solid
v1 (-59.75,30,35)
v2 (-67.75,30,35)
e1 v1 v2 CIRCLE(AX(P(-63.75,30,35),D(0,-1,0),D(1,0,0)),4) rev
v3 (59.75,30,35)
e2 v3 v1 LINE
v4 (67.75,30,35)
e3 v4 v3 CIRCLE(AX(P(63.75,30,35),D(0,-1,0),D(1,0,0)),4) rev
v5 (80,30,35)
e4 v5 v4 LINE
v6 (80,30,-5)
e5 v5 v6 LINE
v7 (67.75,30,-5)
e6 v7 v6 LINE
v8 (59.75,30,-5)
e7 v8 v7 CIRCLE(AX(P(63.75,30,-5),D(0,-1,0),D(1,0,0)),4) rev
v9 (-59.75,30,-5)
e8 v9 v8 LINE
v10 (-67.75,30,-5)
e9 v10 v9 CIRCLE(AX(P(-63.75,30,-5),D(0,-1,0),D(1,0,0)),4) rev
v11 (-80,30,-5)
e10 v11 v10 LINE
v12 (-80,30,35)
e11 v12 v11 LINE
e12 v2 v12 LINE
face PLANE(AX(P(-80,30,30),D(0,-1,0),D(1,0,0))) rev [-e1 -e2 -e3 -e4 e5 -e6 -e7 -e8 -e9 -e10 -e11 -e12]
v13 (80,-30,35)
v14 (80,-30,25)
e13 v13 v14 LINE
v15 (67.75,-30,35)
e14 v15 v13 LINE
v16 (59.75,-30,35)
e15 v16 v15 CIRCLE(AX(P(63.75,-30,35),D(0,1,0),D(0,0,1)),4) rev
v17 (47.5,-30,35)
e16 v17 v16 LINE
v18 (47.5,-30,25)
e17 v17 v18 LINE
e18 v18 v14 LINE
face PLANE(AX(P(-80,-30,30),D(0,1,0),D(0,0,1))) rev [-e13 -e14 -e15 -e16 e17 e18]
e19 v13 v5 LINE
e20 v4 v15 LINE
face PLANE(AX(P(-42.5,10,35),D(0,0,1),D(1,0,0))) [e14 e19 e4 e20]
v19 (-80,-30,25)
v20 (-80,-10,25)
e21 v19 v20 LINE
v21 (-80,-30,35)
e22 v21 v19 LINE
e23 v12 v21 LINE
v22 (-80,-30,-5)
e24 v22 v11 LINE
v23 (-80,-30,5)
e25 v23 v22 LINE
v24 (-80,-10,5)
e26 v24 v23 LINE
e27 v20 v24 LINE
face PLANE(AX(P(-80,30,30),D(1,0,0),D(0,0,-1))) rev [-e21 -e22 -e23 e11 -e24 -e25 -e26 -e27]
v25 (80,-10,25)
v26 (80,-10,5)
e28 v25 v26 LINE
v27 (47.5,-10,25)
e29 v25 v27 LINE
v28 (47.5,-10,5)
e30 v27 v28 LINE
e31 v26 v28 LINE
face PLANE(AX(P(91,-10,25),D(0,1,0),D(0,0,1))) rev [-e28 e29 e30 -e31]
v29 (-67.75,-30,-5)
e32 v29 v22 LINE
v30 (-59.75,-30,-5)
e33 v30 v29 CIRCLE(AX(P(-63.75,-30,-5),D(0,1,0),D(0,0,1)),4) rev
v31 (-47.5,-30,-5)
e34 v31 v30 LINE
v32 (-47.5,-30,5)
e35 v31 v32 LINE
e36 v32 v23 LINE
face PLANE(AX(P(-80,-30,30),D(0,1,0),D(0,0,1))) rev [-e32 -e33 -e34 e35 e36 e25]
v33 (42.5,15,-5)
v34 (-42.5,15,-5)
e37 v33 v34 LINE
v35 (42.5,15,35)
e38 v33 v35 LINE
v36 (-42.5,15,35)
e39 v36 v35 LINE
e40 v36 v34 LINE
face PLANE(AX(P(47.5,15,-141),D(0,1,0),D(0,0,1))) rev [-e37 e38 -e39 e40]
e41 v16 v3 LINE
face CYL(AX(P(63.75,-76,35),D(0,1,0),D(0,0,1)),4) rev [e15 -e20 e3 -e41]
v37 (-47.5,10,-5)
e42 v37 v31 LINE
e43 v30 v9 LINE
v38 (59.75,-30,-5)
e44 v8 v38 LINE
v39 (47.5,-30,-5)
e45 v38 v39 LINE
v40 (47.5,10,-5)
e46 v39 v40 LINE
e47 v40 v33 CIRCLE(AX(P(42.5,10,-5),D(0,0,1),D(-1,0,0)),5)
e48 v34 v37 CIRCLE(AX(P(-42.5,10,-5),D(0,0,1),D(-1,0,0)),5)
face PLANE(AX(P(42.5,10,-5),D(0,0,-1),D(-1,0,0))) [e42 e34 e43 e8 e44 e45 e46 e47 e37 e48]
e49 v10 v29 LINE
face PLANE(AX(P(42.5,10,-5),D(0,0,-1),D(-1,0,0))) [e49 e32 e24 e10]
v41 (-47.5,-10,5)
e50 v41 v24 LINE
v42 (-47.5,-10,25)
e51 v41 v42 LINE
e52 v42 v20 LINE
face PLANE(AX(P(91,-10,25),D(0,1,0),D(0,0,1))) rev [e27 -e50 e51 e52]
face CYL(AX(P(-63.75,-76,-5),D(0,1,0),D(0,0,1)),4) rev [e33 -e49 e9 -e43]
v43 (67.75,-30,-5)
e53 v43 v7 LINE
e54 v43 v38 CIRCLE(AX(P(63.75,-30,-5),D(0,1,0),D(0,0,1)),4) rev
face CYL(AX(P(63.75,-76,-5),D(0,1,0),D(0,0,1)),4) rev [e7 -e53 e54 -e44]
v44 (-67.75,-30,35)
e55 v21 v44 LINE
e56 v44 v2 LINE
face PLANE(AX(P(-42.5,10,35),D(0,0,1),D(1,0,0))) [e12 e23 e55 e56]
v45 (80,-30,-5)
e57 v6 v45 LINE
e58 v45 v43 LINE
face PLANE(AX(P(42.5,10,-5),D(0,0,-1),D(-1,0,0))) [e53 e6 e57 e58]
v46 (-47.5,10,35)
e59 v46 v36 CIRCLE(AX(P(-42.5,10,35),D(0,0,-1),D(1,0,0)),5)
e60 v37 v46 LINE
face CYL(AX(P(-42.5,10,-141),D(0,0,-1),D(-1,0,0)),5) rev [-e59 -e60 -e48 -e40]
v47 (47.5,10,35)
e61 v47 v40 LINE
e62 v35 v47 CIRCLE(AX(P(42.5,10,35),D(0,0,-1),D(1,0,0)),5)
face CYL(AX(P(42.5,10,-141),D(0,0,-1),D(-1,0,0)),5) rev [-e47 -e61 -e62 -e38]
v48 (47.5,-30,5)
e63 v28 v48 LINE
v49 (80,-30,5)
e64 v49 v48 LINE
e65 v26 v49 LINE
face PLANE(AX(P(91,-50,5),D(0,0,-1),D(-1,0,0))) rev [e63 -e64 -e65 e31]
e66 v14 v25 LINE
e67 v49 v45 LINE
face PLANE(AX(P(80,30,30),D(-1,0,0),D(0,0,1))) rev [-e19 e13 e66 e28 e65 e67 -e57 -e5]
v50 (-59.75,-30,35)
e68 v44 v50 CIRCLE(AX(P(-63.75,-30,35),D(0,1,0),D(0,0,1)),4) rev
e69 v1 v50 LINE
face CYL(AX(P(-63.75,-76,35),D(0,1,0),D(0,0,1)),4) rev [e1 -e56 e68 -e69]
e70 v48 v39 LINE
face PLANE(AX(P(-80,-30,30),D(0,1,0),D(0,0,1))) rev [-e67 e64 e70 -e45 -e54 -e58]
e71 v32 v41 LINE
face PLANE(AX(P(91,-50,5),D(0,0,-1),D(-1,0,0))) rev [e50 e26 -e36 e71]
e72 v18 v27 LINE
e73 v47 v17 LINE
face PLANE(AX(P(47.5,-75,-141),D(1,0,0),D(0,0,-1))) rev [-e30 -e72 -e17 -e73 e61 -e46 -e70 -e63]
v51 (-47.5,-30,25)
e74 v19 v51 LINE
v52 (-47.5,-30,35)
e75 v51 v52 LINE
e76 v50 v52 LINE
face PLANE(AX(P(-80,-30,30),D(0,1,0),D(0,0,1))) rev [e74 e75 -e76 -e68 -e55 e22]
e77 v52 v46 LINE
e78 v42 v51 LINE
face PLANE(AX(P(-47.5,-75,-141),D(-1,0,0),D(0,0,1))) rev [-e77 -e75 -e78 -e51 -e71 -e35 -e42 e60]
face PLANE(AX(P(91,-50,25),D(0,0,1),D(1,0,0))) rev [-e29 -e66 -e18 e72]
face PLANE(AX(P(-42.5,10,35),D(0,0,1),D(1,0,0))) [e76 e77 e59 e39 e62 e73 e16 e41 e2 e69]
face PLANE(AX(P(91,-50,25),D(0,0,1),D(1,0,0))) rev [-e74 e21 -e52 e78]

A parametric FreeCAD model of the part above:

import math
import FreeCAD as App
import Part
import Sketcher


def edges_at(feature, points):
    """Names of the edges that pass closest to the given points."""
    edges = feature.Shape.Edges
    near = lambda p: min(range(len(edges)), key=lambda i: edges[i].distToShape(Part.Vertex(*p))[0])
    return sorted({f"Edge{near(p) + 1}" for p in points})

doc = App.newDocument("Part")
body = doc.addObject("PartDesign::Body", "Body")

# Sketch on XY plane
sketch1 = body.newObject("Sketcher::SketchObject", "Sketch")
sketch1.AttachmentSupport = (doc.getObject("XY_Plane"), [""])
sketch1.MapMode = "FlatFace"
sketch1.addGeometry([
    Part.LineSegment(App.Vector(-80, 30, 0), App.Vector(-80, -30, 0)),
    Part.LineSegment(App.Vector(-80, -30, 0), App.Vector(80, -30, 0)),
    Part.LineSegment(App.Vector(80, -30, 0), App.Vector(80, 30, 0)),
    Part.LineSegment(App.Vector(80, 30, 0), App.Vector(-80, 30, 0)),
], False)
sketch1.addConstraint([
    Sketcher.Constraint("Coincident", 0, 2, 1, 1),
    Sketcher.Constraint("Coincident", 1, 2, 2, 1),
    Sketcher.Constraint("Coincident", 2, 2, 3, 1),
    Sketcher.Constraint("Coincident", 3, 2, 0, 1),
    Sketcher.Constraint("Vertical", 0),
    Sketcher.Constraint("Horizontal", 1),
    Sketcher.Constraint("Vertical", 2),
    Sketcher.Constraint("Horizontal", 3),
    Sketcher.Constraint("Symmetric", 0, 2, 2, 2, -1, 1),
    Sketcher.Constraint("DistanceX", 1, 1, 1, 2, 160.0),
    Sketcher.Constraint("DistanceY", 0, 2, 0, 1, 60.0),
])
pad1 = body.newObject("PartDesign::Pad", "Pad")
pad1.Profile = sketch1
pad1.Length = 30

# Sketch on YZ plane
sketch2 = body.newObject("Sketcher::SketchObject", "Sketch001")
sketch2.AttachmentSupport = (doc.getObject("YZ_Plane"), [""])
sketch2.MapMode = "FlatFace"
sketch2.AttachmentOffset = App.Placement(App.Vector(0, 0, -80), App.Rotation())
sketch2.addGeometry([
    Part.LineSegment(App.Vector(-10, 5, 0), App.Vector(-50, 5, 0)),
    Part.LineSegment(App.Vector(-50, 5, 0), App.Vector(-50, 25, 0)),
    Part.LineSegment(App.Vector(-50, 25, 0), App.Vector(-10, 25, 0)),
    Part.LineSegment(App.Vector(-10, 25, 0), App.Vector(-10, 5, 0)),
], False)
sketch2.addConstraint([
    Sketcher.Constraint("Coincident", 0, 2, 1, 1),
    Sketcher.Constraint("Coincident", 1, 2, 2, 1),
    Sketcher.Constraint("Coincident", 2, 2, 3, 1),
    Sketcher.Constraint("Coincident", 3, 2, 0, 1),
    Sketcher.Constraint("Horizontal", 0),
    Sketcher.Constraint("Vertical", 1),
    Sketcher.Constraint("Horizontal", 2),
    Sketcher.Constraint("Vertical", 3),
    Sketcher.Constraint("DistanceX", 0, 2, 0, 1, 40.0),
    Sketcher.Constraint("DistanceY", 1, 1, 1, 2, 20.0),
    Sketcher.Constraint("DistanceX", 0, 2, -1, 1, 50.0),
    Sketcher.Constraint("DistanceY", -1, 1, 0, 2, 5.0),
])
pocket1 = body.newObject("PartDesign::Pocket", "Pocket")
pocket1.Profile = sketch2
pocket1.Length = 171
pocket1.Reversed = True

# Sketch on XY plane
sketch3 = body.newObject("Sketcher::SketchObject", "Sketch002")
sketch3.AttachmentSupport = (doc.getObject("XY_Plane"), [""])
sketch3.MapMode = "FlatFace"
sketch3.AttachmentOffset = App.Placement(App.Vector(0, 0, 30), App.Rotation())
sketch3.addGeometry([
    Part.LineSegment(App.Vector(-48, 15, 0), App.Vector(-48, -75, 0)),
    Part.LineSegment(App.Vector(-48, -75, 0), App.Vector(48, -75, 0)),
    Part.LineSegment(App.Vector(48, -75, 0), App.Vector(48, 15, 0)),
    Part.LineSegment(App.Vector(48, 15, 0), App.Vector(-48, 15, 0)),
], False)
sketch3.addConstraint([
    Sketcher.Constraint("Coincident", 0, 2, 1, 1),
    Sketcher.Constraint("Coincident", 1, 2, 2, 1),
    Sketcher.Constraint("Coincident", 2, 2, 3, 1),
    Sketcher.Constraint("Coincident", 3, 2, 0, 1),
    Sketcher.Constraint("Vertical", 0),
    Sketcher.Constraint("Horizontal", 1),
    Sketcher.Constraint("Vertical", 2),
    Sketcher.Constraint("Horizontal", 3),
    Sketcher.Constraint("DistanceX", 1, 1, 1, 2, 95.0),
    Sketcher.Constraint("DistanceY", 0, 2, 0, 1, 90.0),
    Sketcher.Constraint("DistanceY", 0, 2, -1, 1, 75.0),
    Sketcher.Constraint("DistanceX", 0, 2, -1, 1, 47.5),
])
pocket2 = body.newObject("PartDesign::Pocket", "Pocket001")
pocket2.Profile = sketch3
pocket2.Length = 171
doc.recompute()

fillet = body.newObject("PartDesign::Fillet", "Fillet")
fillet.Base = (pocket2, edges_at(pocket2, [(-47.5, 15, 15), (47.5, 15, 15)]))
fillet.Radius = 5

# Sketch on XY plane
sketch4 = body.newObject("Sketcher::SketchObject", "Sketch003")
sketch4.AttachmentSupport = (doc.getObject("XY_Plane"), [""])
sketch4.MapMode = "FlatFace"
sketch4.AttachmentOffset = App.Placement(App.Vector(0, 0, 30), App.Rotation())
sketch4.addGeometry([
    Part.LineSegment(App.Vector(-48, -30, 0), App.Vector(-48, 10, 0)),  # 0
    Part.ArcOfCircle(Part.Circle(App.Vector(-42, 10, 0), App.Vector(0, 0, 1), 5), math.radians(90), math.radians(180)),  # 1
    Part.LineSegment(App.Vector(-42, 15, 0), App.Vector(42, 15, 0)),  # 2
    Part.ArcOfCircle(Part.Circle(App.Vector(42, 10, 0), App.Vector(0, 0, 1), 5), math.radians(0), math.radians(90)),  # 3
    Part.LineSegment(App.Vector(48, 10, 0), App.Vector(48, -30, 0)),  # 4
    Part.LineSegment(App.Vector(48, -30, 0), App.Vector(80, -30, 0)),  # 5
    Part.LineSegment(App.Vector(80, -30, 0), App.Vector(80, 30, 0)),  # 6
    Part.LineSegment(App.Vector(80, 30, 0), App.Vector(-80, 30, 0)),  # 7
    Part.LineSegment(App.Vector(-80, 30, 0), App.Vector(-80, -30, 0)),  # 8
    Part.LineSegment(App.Vector(-80, -30, 0), App.Vector(-48, -30, 0)),  # 9
], False)
sketch4.addConstraint([
    Sketcher.Constraint("Tangent", 0, 2, 1, 2),
    Sketcher.Constraint("Tangent", 1, 1, 2, 1),
    Sketcher.Constraint("Tangent", 2, 2, 3, 2),
    Sketcher.Constraint("Tangent", 3, 1, 4, 1),
    Sketcher.Constraint("Coincident", 4, 2, 5, 1),
    Sketcher.Constraint("Coincident", 5, 2, 6, 1),
    Sketcher.Constraint("Coincident", 6, 2, 7, 1),
    Sketcher.Constraint("Coincident", 7, 2, 8, 1),
    Sketcher.Constraint("Coincident", 8, 2, 9, 1),
    Sketcher.Constraint("Coincident", 9, 2, 0, 1),
    Sketcher.Constraint("Vertical", 0),
    Sketcher.Constraint("Horizontal", 2),
    Sketcher.Constraint("Vertical", 4),
    Sketcher.Constraint("Horizontal", 5),
    Sketcher.Constraint("Vertical", 6),
    Sketcher.Constraint("Horizontal", 7),
    Sketcher.Constraint("Vertical", 8),
    Sketcher.Constraint("Horizontal", 9),
    Sketcher.Constraint("Equal", 1, 3),
    Sketcher.Constraint("Symmetric", 5, 2, 7, 2, -1, 1),
    Sketcher.Constraint("Symmetric", 4, 2, 9, 2, -2),
    Sketcher.Constraint("Radius", 1, 5.0),
    Sketcher.Constraint("DistanceX", 2, 1, 2, 2, 85.0),
    Sketcher.Constraint("DistanceX", 7, 2, 7, 1, 160.0),
    Sketcher.Constraint("DistanceY", 0, 1, 0, 2, 40.0),
    Sketcher.Constraint("DistanceY", 6, 1, 6, 2, 60.0),
])
pad2 = body.newObject("PartDesign::Pad", "Pad001")
pad2.Profile = sketch4
pad2.Length = 5

# Sketch on XY plane
sketch5 = body.newObject("Sketcher::SketchObject", "Sketch004")
sketch5.AttachmentSupport = (doc.getObject("XY_Plane"), [""])
sketch5.MapMode = "FlatFace"
sketch5.AttachmentOffset = App.Placement(App.Vector(0, 0, -5), App.Rotation())
sketch5.addGeometry([
    Part.LineSegment(App.Vector(48, -30, 0), App.Vector(48, 10, 0)),  # 0
    Part.ArcOfCircle(Part.Circle(App.Vector(42, 10, 0), App.Vector(0, 0, 1), 5), math.radians(0), math.radians(90)),  # 1
    Part.LineSegment(App.Vector(42, 15, 0), App.Vector(-42, 15, 0)),  # 2
    Part.ArcOfCircle(Part.Circle(App.Vector(-42, 10, 0), App.Vector(0, 0, 1), 5), math.radians(90), math.radians(180)),  # 3
    Part.LineSegment(App.Vector(-48, 10, 0), App.Vector(-48, -30, 0)),  # 4
    Part.LineSegment(App.Vector(-48, -30, 0), App.Vector(-80, -30, 0)),  # 5
    Part.LineSegment(App.Vector(-80, -30, 0), App.Vector(-80, 30, 0)),  # 6
    Part.LineSegment(App.Vector(-80, 30, 0), App.Vector(80, 30, 0)),  # 7
    Part.LineSegment(App.Vector(80, 30, 0), App.Vector(80, -30, 0)),  # 8
    Part.LineSegment(App.Vector(80, -30, 0), App.Vector(48, -30, 0)),  # 9
], False)
sketch5.addConstraint([
    Sketcher.Constraint("Tangent", 0, 2, 1, 1),
    Sketcher.Constraint("Tangent", 1, 2, 2, 1),
    Sketcher.Constraint("Tangent", 2, 2, 3, 1),
    Sketcher.Constraint("Tangent", 3, 2, 4, 1),
    Sketcher.Constraint("Coincident", 4, 2, 5, 1),
    Sketcher.Constraint("Coincident", 5, 2, 6, 1),
    Sketcher.Constraint("Coincident", 6, 2, 7, 1),
    Sketcher.Constraint("Coincident", 7, 2, 8, 1),
    Sketcher.Constraint("Coincident", 8, 2, 9, 1),
    Sketcher.Constraint("Coincident", 9, 2, 0, 1),
    Sketcher.Constraint("Vertical", 0),
    Sketcher.Constraint("Horizontal", 2),
    Sketcher.Constraint("Vertical", 4),
    Sketcher.Constraint("Horizontal", 5),
    Sketcher.Constraint("Vertical", 6),
    Sketcher.Constraint("Horizontal", 7),
    Sketcher.Constraint("Vertical", 8),
    Sketcher.Constraint("Horizontal", 9),
    Sketcher.Constraint("Equal", 1, 3),
    Sketcher.Constraint("Symmetric", 5, 2, 7, 2, -1, 1),
    Sketcher.Constraint("Symmetric", 4, 2, 9, 2, -2),
    Sketcher.Constraint("Radius", 1, 5.0),
    Sketcher.Constraint("DistanceX", 2, 2, 2, 1, 85.0),
    Sketcher.Constraint("DistanceX", 7, 1, 7, 2, 160.0),
    Sketcher.Constraint("DistanceY", 0, 1, 0, 2, 40.0),
    Sketcher.Constraint("DistanceY", 6, 1, 6, 2, 60.0),
])
pad3 = body.newObject("PartDesign::Pad", "Pad002")
pad3.Profile = sketch5
pad3.Length = 5

# Sketch on XZ plane
sketch6 = body.newObject("Sketcher::SketchObject", "Sketch005")
sketch6.AttachmentSupport = (doc.getObject("XZ_Plane"), [""])
sketch6.MapMode = "FlatFace"
sketch6.AttachmentOffset = App.Placement(App.Vector(0, 0, -15), App.Rotation())
sketch6.addGeometry([
    Part.Circle(App.Vector(-63.8, 35, 0), App.Vector(0, 0, 1), 4),
    Part.Circle(App.Vector(-63.8, -5, 0), App.Vector(0, 0, 1), 4),
    Part.Circle(App.Vector(63.8, -5, 0), App.Vector(0, 0, 1), 4),
    Part.Circle(App.Vector(63.8, 35, 0), App.Vector(0, 0, 1), 4),
], False)
sketch6.addConstraint([
    Sketcher.Constraint("Equal", 0, 1),
    Sketcher.Constraint("Equal", 1, 2),
    Sketcher.Constraint("Equal", 2, 3),
    Sketcher.Constraint("Symmetric", 1, 3, 2, 3, -2),
    Sketcher.Constraint("Symmetric", 0, 3, 3, 3, -2),
    Sketcher.Constraint("Vertical", 0, 3, 1, 3),
    Sketcher.Constraint("Diameter", 0, 8.0),
    Sketcher.Constraint("DistanceY", -1, 1, 0, 3, 35.0),
    Sketcher.Constraint("DistanceY", 1, 3, -1, 1, 5.0),
    Sketcher.Constraint("DistanceX", 1, 3, 2, 3, 127.5),
])
pocket3 = body.newObject("PartDesign::Pocket", "Pocket002")
pocket3.Profile = sketch6
pocket3.Type = "ThroughAll"
pocket3.Midplane = True

doc.recompute()
